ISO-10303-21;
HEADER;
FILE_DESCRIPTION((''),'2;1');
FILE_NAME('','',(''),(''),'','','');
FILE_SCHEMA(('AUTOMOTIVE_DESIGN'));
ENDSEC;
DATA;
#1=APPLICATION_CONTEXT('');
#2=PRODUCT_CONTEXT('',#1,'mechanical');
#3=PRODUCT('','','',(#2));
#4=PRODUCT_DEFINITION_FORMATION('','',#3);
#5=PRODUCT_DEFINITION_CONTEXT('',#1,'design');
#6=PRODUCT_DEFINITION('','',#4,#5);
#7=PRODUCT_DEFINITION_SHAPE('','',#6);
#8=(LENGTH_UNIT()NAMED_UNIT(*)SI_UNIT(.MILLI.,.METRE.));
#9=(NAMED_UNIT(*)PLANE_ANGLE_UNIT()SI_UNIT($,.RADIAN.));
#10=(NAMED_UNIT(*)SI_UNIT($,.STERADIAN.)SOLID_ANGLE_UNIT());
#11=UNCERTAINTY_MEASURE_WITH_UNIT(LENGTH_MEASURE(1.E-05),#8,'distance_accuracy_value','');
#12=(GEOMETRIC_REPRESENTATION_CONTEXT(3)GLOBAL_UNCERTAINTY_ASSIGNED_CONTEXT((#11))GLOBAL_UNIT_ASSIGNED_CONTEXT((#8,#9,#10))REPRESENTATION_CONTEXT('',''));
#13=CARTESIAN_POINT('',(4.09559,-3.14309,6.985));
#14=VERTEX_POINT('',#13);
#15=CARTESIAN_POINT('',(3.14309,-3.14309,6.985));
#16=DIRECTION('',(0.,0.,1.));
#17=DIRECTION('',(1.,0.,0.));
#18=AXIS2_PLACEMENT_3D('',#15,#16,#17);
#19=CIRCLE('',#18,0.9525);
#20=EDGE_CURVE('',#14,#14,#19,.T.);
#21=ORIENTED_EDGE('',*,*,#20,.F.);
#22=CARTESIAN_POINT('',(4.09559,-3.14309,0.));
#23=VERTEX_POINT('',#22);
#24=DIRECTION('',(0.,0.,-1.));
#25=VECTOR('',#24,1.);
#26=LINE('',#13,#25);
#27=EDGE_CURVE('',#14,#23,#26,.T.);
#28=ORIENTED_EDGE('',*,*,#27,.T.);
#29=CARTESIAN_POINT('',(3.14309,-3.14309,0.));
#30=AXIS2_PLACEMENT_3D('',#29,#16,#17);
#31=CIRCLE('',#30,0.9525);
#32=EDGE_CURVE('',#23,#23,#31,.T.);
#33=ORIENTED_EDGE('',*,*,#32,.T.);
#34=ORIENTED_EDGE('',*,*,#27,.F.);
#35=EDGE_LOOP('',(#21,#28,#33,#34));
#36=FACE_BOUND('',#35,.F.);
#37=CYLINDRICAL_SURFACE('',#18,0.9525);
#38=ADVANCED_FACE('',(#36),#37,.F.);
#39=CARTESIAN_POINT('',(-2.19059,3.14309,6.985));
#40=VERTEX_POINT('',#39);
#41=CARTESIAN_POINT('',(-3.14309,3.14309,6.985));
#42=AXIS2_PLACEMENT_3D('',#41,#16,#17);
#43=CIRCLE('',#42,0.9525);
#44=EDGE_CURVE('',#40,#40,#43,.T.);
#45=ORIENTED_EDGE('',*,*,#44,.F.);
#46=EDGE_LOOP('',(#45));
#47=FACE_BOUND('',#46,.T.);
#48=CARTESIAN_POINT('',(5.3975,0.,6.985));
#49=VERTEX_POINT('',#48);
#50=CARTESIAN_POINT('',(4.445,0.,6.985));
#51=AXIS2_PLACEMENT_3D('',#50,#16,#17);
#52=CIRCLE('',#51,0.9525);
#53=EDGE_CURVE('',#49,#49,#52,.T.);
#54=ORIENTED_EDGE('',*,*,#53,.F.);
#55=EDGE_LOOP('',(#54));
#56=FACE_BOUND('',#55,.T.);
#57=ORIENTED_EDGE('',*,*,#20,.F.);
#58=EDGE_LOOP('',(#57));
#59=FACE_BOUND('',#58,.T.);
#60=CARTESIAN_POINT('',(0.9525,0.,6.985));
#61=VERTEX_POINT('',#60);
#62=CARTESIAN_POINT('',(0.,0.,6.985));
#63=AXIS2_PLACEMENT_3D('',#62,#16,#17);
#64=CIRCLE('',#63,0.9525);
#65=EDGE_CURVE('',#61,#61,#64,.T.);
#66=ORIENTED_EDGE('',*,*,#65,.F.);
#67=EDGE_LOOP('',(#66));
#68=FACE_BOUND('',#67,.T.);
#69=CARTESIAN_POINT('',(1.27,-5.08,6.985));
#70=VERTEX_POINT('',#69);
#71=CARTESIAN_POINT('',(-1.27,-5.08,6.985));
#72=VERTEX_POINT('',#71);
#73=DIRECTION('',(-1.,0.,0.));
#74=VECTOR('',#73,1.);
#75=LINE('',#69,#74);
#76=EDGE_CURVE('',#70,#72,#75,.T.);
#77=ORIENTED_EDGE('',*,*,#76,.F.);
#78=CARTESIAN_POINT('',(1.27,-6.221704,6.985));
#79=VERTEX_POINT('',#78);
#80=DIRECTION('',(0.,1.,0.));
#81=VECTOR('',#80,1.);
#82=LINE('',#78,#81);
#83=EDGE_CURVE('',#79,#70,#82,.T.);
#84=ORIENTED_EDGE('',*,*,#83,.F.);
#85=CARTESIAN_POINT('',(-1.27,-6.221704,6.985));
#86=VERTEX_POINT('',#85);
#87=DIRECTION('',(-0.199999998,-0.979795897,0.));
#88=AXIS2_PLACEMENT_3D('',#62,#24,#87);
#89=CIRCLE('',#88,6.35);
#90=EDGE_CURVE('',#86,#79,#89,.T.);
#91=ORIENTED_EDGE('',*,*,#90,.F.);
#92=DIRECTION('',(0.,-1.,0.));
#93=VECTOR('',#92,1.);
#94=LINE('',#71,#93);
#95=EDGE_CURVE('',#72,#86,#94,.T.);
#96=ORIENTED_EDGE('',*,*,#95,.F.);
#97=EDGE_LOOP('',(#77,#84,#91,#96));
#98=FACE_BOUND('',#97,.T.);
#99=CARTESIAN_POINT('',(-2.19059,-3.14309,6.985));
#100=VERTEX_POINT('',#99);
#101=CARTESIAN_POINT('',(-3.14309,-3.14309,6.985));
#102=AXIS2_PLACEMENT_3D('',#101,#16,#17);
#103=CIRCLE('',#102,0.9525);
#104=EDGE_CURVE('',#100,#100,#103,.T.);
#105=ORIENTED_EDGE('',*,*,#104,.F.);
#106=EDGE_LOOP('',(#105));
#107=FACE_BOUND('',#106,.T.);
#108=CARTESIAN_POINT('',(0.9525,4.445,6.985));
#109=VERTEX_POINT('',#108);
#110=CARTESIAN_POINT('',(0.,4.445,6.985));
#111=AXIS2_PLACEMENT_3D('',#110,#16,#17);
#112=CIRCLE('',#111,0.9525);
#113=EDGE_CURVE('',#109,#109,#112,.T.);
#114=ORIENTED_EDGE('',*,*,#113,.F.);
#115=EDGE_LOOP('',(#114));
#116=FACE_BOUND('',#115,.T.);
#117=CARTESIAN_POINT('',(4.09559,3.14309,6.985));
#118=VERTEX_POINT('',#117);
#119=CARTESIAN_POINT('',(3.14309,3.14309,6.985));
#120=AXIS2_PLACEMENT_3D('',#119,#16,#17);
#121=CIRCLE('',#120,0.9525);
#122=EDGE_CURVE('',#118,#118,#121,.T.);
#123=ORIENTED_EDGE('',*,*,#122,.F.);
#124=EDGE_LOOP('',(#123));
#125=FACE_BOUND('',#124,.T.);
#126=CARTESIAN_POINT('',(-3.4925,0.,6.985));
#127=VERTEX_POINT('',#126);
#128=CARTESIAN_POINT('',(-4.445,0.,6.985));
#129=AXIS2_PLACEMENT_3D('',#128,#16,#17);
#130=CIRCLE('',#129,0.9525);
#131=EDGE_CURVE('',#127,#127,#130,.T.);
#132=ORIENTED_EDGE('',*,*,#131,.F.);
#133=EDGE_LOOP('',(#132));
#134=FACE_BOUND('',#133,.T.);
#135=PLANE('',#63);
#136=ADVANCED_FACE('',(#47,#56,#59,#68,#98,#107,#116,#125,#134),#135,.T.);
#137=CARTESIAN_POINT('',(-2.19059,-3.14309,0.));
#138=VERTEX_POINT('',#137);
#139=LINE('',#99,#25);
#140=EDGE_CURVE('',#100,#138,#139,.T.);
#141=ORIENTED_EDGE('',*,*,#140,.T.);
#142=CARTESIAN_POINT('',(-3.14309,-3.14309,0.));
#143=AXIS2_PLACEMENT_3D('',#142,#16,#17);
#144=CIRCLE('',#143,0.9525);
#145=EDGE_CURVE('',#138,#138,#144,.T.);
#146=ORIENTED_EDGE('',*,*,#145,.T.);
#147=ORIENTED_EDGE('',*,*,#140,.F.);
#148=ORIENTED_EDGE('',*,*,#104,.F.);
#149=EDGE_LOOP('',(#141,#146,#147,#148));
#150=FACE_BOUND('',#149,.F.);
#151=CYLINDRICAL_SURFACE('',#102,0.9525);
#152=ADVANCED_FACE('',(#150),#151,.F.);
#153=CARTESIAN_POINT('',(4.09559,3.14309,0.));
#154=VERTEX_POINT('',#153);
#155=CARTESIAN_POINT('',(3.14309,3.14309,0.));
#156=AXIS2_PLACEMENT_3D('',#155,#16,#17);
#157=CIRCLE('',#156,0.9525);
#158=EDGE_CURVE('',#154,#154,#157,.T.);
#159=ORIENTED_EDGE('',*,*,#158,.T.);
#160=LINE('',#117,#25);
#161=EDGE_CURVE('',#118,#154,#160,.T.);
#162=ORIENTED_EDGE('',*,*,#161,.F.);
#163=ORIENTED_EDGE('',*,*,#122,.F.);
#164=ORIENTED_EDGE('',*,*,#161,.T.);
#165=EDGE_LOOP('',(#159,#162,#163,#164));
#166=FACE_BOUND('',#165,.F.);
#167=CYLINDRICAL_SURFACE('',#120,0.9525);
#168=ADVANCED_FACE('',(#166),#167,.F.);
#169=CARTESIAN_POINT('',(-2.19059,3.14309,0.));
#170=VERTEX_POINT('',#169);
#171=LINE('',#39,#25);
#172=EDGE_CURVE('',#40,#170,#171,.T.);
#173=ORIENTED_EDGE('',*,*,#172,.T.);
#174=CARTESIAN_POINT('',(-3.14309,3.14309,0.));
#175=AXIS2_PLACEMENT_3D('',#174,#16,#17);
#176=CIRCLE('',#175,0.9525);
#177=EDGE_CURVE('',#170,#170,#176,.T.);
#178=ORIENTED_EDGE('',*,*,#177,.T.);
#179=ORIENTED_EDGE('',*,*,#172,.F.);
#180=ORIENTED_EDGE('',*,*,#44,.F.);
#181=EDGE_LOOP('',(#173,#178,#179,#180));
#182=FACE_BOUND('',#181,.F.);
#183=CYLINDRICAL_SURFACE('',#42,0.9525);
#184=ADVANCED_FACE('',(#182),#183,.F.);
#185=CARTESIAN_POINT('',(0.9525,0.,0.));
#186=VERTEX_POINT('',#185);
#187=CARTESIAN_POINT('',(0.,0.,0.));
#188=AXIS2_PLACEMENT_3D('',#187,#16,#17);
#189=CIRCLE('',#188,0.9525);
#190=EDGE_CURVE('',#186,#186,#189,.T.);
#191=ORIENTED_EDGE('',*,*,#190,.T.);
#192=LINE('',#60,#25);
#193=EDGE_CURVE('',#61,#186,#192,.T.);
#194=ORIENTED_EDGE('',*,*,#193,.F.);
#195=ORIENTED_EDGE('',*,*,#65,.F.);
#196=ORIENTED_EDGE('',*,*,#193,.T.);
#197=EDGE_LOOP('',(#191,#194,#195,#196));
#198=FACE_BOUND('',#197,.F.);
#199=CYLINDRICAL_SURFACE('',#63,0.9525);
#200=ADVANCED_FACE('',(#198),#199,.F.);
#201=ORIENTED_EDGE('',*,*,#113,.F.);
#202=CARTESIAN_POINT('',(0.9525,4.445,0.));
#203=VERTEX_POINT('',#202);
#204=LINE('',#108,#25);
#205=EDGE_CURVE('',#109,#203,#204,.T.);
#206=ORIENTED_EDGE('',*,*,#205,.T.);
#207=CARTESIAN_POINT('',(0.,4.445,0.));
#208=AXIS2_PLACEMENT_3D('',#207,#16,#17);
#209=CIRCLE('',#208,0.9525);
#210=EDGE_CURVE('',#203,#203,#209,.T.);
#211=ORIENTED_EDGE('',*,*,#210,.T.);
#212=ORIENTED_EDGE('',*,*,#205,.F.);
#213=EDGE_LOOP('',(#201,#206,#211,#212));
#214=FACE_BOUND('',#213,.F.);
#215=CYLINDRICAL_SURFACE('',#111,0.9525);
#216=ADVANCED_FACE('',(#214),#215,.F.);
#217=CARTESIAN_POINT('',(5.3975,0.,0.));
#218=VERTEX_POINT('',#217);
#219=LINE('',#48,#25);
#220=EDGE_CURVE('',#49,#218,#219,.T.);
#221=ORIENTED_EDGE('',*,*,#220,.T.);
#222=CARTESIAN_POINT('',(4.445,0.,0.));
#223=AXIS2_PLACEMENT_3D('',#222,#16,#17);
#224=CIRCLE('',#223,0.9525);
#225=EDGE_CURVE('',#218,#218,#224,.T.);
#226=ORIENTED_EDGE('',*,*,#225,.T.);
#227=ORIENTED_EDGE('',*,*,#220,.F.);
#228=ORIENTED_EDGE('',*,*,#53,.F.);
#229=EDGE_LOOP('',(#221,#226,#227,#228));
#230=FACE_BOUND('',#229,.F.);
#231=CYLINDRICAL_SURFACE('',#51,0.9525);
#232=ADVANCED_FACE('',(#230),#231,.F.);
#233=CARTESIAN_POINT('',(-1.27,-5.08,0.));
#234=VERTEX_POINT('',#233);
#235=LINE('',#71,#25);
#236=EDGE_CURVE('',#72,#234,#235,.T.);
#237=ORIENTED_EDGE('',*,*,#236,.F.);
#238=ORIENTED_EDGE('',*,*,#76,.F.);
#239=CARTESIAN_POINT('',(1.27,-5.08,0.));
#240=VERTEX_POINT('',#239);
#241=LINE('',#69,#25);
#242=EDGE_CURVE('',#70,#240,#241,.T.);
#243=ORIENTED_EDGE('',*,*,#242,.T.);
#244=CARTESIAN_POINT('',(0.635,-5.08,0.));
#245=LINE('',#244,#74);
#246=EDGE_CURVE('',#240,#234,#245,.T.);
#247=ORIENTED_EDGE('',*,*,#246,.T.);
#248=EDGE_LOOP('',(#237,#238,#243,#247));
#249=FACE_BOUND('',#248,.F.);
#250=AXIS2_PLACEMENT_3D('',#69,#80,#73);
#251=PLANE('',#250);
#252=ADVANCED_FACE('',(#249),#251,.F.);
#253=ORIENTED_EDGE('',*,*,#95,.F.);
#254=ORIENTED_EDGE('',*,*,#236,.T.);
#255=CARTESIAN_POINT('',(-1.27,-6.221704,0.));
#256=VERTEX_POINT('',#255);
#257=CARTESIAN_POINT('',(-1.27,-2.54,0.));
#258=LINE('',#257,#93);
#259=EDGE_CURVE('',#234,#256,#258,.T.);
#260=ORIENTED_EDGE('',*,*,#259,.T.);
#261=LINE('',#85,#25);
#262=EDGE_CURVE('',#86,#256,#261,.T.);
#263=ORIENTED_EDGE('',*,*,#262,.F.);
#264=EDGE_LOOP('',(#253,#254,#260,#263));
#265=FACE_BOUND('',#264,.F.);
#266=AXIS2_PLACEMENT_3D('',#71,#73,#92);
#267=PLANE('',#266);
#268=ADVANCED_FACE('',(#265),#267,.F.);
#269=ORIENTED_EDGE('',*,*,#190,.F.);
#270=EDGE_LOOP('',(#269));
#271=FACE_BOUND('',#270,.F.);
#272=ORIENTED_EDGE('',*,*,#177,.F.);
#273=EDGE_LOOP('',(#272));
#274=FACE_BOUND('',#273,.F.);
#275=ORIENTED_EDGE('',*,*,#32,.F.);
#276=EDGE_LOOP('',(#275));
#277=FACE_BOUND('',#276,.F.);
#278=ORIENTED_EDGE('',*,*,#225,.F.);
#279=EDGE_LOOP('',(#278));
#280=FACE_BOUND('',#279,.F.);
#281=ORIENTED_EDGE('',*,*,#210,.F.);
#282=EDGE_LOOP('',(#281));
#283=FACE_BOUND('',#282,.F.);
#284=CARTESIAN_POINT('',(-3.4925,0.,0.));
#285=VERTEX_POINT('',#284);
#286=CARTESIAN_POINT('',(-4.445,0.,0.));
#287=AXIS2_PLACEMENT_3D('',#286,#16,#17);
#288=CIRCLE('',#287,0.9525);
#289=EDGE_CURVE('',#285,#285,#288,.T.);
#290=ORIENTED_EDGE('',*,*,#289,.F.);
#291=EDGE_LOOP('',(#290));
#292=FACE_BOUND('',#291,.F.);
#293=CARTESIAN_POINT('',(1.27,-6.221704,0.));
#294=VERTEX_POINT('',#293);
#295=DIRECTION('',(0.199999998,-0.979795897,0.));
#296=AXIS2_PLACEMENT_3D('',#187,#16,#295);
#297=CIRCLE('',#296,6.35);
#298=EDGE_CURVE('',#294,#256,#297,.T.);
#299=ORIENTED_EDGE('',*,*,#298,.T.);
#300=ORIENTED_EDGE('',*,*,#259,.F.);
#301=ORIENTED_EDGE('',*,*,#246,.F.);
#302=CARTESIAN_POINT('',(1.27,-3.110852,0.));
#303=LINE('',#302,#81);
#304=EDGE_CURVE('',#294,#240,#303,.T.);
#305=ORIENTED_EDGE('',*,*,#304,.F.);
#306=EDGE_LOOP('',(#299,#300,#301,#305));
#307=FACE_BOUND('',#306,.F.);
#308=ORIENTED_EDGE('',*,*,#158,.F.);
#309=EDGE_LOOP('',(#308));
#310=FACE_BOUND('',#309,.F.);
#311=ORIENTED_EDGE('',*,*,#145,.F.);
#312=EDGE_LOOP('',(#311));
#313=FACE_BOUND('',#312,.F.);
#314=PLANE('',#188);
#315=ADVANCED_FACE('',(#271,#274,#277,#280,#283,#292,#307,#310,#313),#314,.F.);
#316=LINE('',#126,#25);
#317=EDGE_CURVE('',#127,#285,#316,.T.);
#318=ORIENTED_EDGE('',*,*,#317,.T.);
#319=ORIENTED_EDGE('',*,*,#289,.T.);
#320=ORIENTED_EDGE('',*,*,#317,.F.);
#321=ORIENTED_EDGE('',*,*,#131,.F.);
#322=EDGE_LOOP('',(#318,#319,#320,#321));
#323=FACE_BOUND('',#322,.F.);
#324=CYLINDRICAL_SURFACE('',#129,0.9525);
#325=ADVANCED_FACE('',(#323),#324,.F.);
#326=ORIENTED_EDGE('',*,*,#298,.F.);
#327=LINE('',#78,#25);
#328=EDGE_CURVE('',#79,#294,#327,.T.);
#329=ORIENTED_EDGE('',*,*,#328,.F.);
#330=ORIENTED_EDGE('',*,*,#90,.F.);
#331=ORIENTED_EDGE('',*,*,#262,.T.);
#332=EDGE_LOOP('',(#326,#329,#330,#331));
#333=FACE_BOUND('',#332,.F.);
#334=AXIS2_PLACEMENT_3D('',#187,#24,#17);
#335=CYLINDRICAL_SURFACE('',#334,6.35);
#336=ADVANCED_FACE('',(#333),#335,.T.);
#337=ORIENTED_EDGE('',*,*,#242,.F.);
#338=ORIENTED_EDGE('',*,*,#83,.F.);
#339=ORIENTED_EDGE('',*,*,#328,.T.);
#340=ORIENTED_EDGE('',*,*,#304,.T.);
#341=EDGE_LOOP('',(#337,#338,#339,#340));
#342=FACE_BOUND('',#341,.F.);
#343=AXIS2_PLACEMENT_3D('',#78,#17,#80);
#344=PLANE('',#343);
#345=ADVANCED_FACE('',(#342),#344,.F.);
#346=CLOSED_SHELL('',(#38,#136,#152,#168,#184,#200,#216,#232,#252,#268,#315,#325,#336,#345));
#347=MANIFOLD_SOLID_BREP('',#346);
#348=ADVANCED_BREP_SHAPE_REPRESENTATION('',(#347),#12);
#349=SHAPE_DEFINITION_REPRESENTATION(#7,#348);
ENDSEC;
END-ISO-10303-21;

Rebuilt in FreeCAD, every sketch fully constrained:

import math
import FreeCAD as App
import Part
import Sketcher
from FreeCAD import Vector
Q = App.Units.Quantity

doc = App.newDocument("Part")
body = doc.addObject("PartDesign::Body", "Body")

sketch1 = body.newObject("Sketcher::SketchObject", "Sketch")
sketch1.AttachmentSupport = (doc.getObject("XY_Plane"), [""])
sketch1.MapMode = "FlatFace"
sketch1.addGeometry(Part.Circle(Vector(0, 0, 0), Vector(0, 0, 1), 6.35), False)
sketch1.addConstraint([
    Sketcher.Constraint("Coincident", 0, 3, -1, 1),
    Sketcher.Constraint("Diameter", 0, Q("0.5 in")),
])
pad1 = body.newObject("PartDesign::Pad", "Pad")
pad1.Profile = sketch1
pad1.Length = Q("0.275 in")

sketch2 = body.newObject("Sketcher::SketchObject", "Sketch001")
sketch2.AttachmentSupport = (doc.getObject("XY_Plane"), [""])
sketch2.MapMode = "FlatFace"
sketch2.AttachmentOffset = App.Placement(Vector(0, 0, 0.275 * 25.4), App.Rotation())
sketch2.addGeometry([
    Part.Circle(Vector(0, 4.445, 0), Vector(0, 0, 1), 0.9525),
    Part.Circle(Vector(3.14309, 3.14309, 0), Vector(0, 0, 1), 0.9525),
    Part.Circle(Vector(3.14309, -3.14309, 0), Vector(0, 0, 1), 0.9525),
    Part.Circle(Vector(-3.14309, 3.14309, 0), Vector(0, 0, 1), 0.9525),
    Part.Circle(Vector(-3.14309, -3.14309, 0), Vector(0, 0, 1), 0.9525),
    Part.Circle(Vector(-4.445, 0, 0), Vector(0, 0, 1), 0.9525),
    Part.Circle(Vector(4.445, 0, 0), Vector(0, 0, 1), 0.9525),
    Part.Circle(Vector(0, 0, 0), Vector(0, 0, 1), 0.9525),
], False)
sketch2.addConstraint([
    Sketcher.Constraint("Coincident", 7, 3, -1, 1),
    Sketcher.Constraint("Equal", 0, 1),
    Sketcher.Constraint("Equal", 1, 2),
    Sketcher.Constraint("Equal", 2, 3),
    Sketcher.Constraint("Equal", 3, 4),
    Sketcher.Constraint("Equal", 4, 5),
    Sketcher.Constraint("Equal", 5, 6),
    Sketcher.Constraint("Equal", 6, 7),
    Sketcher.Constraint("Symmetric", 2, 3, 3, 3, -1, 1),
    Sketcher.Constraint("Symmetric", 1, 3, 4, 3, -1, 1),
    Sketcher.Constraint("Symmetric", 5, 3, 6, 3, -1, 1),
    Sketcher.Constraint("Symmetric", 1, 3, 3, 3, -2),
    Sketcher.Constraint("PointOnObject", 0, 3, -2),
    Sketcher.Constraint("PointOnObject", 5, 3, -1),
    Sketcher.Constraint("Diameter", 0, Q("0.075 in")),
    Sketcher.Constraint("DistanceY", -1, 1, 0, 3, Q("0.175 in")),
    Sketcher.Constraint("DistanceX", 5, 3, -1, 1, Q("0.175 in")),
    Sketcher.Constraint("DistanceX", -1, 1, 1, 3, 3.14309),
    Sketcher.Constraint("DistanceY", -1, 1, 1, 3, 3.14309),
])
pocket1 = body.newObject("PartDesign::Pocket", "Pocket")
pocket1.Profile = sketch2
pocket1.Type = "ThroughAll"

sketch3 = body.newObject("Sketcher::SketchObject", "Sketch002")
sketch3.AttachmentSupport = (doc.getObject("XY_Plane"), [""])
sketch3.MapMode = "FlatFace"
sketch3.AttachmentOffset = App.Placement(Vector(0, 0, 0.275 * 25.4), App.Rotation())
sketch3.addGeometry([
    Part.LineSegment(Vector(-1.27, -5.08, 0), Vector(-1.27, -6.221704, 0)),
    Part.ArcOfCircle(Part.Circle(Vector(0, 0.000003, 0), Vector(0, 0, 1), 6.350003), math.radians(-101.536954), math.radians(-78.463046)),
    Part.LineSegment(Vector(1.27, -6.221704, 0), Vector(1.27, -5.08, 0)),
    Part.LineSegment(Vector(1.27, -5.08, 0), Vector(-1.27, -5.08, 0)),
], False)
sketch3.addConstraint([
    Sketcher.Constraint("Coincident", 0, 2, 1, 1),
    Sketcher.Constraint("Coincident", 1, 2, 2, 1),
    Sketcher.Constraint("Coincident", 2, 2, 3, 1),
    Sketcher.Constraint("Coincident", 3, 2, 0, 1),
    Sketcher.Constraint("Vertical", 0),
    Sketcher.Constraint("Vertical", 2),
    Sketcher.Constraint("Horizontal", 3),
    Sketcher.Constraint("Coincident", 1, 3, -1, 1),
    Sketcher.Constraint("Horizontal", 0, 2, 1, 2),
    Sketcher.Constraint("Radius", 1, Q("0.2500001 in")),
    Sketcher.Constraint("DistanceX", 3, 2, 3, 1, Q("0.1 in")),
    Sketcher.Constraint("DistanceY", 2, 2, -1, 1, Q("0.2 in")),
])
pocket2 = body.newObject("PartDesign::Pocket", "Pocket001")
pocket2.Profile = sketch3
pocket2.Type = "ThroughAll"

doc.recompute()
